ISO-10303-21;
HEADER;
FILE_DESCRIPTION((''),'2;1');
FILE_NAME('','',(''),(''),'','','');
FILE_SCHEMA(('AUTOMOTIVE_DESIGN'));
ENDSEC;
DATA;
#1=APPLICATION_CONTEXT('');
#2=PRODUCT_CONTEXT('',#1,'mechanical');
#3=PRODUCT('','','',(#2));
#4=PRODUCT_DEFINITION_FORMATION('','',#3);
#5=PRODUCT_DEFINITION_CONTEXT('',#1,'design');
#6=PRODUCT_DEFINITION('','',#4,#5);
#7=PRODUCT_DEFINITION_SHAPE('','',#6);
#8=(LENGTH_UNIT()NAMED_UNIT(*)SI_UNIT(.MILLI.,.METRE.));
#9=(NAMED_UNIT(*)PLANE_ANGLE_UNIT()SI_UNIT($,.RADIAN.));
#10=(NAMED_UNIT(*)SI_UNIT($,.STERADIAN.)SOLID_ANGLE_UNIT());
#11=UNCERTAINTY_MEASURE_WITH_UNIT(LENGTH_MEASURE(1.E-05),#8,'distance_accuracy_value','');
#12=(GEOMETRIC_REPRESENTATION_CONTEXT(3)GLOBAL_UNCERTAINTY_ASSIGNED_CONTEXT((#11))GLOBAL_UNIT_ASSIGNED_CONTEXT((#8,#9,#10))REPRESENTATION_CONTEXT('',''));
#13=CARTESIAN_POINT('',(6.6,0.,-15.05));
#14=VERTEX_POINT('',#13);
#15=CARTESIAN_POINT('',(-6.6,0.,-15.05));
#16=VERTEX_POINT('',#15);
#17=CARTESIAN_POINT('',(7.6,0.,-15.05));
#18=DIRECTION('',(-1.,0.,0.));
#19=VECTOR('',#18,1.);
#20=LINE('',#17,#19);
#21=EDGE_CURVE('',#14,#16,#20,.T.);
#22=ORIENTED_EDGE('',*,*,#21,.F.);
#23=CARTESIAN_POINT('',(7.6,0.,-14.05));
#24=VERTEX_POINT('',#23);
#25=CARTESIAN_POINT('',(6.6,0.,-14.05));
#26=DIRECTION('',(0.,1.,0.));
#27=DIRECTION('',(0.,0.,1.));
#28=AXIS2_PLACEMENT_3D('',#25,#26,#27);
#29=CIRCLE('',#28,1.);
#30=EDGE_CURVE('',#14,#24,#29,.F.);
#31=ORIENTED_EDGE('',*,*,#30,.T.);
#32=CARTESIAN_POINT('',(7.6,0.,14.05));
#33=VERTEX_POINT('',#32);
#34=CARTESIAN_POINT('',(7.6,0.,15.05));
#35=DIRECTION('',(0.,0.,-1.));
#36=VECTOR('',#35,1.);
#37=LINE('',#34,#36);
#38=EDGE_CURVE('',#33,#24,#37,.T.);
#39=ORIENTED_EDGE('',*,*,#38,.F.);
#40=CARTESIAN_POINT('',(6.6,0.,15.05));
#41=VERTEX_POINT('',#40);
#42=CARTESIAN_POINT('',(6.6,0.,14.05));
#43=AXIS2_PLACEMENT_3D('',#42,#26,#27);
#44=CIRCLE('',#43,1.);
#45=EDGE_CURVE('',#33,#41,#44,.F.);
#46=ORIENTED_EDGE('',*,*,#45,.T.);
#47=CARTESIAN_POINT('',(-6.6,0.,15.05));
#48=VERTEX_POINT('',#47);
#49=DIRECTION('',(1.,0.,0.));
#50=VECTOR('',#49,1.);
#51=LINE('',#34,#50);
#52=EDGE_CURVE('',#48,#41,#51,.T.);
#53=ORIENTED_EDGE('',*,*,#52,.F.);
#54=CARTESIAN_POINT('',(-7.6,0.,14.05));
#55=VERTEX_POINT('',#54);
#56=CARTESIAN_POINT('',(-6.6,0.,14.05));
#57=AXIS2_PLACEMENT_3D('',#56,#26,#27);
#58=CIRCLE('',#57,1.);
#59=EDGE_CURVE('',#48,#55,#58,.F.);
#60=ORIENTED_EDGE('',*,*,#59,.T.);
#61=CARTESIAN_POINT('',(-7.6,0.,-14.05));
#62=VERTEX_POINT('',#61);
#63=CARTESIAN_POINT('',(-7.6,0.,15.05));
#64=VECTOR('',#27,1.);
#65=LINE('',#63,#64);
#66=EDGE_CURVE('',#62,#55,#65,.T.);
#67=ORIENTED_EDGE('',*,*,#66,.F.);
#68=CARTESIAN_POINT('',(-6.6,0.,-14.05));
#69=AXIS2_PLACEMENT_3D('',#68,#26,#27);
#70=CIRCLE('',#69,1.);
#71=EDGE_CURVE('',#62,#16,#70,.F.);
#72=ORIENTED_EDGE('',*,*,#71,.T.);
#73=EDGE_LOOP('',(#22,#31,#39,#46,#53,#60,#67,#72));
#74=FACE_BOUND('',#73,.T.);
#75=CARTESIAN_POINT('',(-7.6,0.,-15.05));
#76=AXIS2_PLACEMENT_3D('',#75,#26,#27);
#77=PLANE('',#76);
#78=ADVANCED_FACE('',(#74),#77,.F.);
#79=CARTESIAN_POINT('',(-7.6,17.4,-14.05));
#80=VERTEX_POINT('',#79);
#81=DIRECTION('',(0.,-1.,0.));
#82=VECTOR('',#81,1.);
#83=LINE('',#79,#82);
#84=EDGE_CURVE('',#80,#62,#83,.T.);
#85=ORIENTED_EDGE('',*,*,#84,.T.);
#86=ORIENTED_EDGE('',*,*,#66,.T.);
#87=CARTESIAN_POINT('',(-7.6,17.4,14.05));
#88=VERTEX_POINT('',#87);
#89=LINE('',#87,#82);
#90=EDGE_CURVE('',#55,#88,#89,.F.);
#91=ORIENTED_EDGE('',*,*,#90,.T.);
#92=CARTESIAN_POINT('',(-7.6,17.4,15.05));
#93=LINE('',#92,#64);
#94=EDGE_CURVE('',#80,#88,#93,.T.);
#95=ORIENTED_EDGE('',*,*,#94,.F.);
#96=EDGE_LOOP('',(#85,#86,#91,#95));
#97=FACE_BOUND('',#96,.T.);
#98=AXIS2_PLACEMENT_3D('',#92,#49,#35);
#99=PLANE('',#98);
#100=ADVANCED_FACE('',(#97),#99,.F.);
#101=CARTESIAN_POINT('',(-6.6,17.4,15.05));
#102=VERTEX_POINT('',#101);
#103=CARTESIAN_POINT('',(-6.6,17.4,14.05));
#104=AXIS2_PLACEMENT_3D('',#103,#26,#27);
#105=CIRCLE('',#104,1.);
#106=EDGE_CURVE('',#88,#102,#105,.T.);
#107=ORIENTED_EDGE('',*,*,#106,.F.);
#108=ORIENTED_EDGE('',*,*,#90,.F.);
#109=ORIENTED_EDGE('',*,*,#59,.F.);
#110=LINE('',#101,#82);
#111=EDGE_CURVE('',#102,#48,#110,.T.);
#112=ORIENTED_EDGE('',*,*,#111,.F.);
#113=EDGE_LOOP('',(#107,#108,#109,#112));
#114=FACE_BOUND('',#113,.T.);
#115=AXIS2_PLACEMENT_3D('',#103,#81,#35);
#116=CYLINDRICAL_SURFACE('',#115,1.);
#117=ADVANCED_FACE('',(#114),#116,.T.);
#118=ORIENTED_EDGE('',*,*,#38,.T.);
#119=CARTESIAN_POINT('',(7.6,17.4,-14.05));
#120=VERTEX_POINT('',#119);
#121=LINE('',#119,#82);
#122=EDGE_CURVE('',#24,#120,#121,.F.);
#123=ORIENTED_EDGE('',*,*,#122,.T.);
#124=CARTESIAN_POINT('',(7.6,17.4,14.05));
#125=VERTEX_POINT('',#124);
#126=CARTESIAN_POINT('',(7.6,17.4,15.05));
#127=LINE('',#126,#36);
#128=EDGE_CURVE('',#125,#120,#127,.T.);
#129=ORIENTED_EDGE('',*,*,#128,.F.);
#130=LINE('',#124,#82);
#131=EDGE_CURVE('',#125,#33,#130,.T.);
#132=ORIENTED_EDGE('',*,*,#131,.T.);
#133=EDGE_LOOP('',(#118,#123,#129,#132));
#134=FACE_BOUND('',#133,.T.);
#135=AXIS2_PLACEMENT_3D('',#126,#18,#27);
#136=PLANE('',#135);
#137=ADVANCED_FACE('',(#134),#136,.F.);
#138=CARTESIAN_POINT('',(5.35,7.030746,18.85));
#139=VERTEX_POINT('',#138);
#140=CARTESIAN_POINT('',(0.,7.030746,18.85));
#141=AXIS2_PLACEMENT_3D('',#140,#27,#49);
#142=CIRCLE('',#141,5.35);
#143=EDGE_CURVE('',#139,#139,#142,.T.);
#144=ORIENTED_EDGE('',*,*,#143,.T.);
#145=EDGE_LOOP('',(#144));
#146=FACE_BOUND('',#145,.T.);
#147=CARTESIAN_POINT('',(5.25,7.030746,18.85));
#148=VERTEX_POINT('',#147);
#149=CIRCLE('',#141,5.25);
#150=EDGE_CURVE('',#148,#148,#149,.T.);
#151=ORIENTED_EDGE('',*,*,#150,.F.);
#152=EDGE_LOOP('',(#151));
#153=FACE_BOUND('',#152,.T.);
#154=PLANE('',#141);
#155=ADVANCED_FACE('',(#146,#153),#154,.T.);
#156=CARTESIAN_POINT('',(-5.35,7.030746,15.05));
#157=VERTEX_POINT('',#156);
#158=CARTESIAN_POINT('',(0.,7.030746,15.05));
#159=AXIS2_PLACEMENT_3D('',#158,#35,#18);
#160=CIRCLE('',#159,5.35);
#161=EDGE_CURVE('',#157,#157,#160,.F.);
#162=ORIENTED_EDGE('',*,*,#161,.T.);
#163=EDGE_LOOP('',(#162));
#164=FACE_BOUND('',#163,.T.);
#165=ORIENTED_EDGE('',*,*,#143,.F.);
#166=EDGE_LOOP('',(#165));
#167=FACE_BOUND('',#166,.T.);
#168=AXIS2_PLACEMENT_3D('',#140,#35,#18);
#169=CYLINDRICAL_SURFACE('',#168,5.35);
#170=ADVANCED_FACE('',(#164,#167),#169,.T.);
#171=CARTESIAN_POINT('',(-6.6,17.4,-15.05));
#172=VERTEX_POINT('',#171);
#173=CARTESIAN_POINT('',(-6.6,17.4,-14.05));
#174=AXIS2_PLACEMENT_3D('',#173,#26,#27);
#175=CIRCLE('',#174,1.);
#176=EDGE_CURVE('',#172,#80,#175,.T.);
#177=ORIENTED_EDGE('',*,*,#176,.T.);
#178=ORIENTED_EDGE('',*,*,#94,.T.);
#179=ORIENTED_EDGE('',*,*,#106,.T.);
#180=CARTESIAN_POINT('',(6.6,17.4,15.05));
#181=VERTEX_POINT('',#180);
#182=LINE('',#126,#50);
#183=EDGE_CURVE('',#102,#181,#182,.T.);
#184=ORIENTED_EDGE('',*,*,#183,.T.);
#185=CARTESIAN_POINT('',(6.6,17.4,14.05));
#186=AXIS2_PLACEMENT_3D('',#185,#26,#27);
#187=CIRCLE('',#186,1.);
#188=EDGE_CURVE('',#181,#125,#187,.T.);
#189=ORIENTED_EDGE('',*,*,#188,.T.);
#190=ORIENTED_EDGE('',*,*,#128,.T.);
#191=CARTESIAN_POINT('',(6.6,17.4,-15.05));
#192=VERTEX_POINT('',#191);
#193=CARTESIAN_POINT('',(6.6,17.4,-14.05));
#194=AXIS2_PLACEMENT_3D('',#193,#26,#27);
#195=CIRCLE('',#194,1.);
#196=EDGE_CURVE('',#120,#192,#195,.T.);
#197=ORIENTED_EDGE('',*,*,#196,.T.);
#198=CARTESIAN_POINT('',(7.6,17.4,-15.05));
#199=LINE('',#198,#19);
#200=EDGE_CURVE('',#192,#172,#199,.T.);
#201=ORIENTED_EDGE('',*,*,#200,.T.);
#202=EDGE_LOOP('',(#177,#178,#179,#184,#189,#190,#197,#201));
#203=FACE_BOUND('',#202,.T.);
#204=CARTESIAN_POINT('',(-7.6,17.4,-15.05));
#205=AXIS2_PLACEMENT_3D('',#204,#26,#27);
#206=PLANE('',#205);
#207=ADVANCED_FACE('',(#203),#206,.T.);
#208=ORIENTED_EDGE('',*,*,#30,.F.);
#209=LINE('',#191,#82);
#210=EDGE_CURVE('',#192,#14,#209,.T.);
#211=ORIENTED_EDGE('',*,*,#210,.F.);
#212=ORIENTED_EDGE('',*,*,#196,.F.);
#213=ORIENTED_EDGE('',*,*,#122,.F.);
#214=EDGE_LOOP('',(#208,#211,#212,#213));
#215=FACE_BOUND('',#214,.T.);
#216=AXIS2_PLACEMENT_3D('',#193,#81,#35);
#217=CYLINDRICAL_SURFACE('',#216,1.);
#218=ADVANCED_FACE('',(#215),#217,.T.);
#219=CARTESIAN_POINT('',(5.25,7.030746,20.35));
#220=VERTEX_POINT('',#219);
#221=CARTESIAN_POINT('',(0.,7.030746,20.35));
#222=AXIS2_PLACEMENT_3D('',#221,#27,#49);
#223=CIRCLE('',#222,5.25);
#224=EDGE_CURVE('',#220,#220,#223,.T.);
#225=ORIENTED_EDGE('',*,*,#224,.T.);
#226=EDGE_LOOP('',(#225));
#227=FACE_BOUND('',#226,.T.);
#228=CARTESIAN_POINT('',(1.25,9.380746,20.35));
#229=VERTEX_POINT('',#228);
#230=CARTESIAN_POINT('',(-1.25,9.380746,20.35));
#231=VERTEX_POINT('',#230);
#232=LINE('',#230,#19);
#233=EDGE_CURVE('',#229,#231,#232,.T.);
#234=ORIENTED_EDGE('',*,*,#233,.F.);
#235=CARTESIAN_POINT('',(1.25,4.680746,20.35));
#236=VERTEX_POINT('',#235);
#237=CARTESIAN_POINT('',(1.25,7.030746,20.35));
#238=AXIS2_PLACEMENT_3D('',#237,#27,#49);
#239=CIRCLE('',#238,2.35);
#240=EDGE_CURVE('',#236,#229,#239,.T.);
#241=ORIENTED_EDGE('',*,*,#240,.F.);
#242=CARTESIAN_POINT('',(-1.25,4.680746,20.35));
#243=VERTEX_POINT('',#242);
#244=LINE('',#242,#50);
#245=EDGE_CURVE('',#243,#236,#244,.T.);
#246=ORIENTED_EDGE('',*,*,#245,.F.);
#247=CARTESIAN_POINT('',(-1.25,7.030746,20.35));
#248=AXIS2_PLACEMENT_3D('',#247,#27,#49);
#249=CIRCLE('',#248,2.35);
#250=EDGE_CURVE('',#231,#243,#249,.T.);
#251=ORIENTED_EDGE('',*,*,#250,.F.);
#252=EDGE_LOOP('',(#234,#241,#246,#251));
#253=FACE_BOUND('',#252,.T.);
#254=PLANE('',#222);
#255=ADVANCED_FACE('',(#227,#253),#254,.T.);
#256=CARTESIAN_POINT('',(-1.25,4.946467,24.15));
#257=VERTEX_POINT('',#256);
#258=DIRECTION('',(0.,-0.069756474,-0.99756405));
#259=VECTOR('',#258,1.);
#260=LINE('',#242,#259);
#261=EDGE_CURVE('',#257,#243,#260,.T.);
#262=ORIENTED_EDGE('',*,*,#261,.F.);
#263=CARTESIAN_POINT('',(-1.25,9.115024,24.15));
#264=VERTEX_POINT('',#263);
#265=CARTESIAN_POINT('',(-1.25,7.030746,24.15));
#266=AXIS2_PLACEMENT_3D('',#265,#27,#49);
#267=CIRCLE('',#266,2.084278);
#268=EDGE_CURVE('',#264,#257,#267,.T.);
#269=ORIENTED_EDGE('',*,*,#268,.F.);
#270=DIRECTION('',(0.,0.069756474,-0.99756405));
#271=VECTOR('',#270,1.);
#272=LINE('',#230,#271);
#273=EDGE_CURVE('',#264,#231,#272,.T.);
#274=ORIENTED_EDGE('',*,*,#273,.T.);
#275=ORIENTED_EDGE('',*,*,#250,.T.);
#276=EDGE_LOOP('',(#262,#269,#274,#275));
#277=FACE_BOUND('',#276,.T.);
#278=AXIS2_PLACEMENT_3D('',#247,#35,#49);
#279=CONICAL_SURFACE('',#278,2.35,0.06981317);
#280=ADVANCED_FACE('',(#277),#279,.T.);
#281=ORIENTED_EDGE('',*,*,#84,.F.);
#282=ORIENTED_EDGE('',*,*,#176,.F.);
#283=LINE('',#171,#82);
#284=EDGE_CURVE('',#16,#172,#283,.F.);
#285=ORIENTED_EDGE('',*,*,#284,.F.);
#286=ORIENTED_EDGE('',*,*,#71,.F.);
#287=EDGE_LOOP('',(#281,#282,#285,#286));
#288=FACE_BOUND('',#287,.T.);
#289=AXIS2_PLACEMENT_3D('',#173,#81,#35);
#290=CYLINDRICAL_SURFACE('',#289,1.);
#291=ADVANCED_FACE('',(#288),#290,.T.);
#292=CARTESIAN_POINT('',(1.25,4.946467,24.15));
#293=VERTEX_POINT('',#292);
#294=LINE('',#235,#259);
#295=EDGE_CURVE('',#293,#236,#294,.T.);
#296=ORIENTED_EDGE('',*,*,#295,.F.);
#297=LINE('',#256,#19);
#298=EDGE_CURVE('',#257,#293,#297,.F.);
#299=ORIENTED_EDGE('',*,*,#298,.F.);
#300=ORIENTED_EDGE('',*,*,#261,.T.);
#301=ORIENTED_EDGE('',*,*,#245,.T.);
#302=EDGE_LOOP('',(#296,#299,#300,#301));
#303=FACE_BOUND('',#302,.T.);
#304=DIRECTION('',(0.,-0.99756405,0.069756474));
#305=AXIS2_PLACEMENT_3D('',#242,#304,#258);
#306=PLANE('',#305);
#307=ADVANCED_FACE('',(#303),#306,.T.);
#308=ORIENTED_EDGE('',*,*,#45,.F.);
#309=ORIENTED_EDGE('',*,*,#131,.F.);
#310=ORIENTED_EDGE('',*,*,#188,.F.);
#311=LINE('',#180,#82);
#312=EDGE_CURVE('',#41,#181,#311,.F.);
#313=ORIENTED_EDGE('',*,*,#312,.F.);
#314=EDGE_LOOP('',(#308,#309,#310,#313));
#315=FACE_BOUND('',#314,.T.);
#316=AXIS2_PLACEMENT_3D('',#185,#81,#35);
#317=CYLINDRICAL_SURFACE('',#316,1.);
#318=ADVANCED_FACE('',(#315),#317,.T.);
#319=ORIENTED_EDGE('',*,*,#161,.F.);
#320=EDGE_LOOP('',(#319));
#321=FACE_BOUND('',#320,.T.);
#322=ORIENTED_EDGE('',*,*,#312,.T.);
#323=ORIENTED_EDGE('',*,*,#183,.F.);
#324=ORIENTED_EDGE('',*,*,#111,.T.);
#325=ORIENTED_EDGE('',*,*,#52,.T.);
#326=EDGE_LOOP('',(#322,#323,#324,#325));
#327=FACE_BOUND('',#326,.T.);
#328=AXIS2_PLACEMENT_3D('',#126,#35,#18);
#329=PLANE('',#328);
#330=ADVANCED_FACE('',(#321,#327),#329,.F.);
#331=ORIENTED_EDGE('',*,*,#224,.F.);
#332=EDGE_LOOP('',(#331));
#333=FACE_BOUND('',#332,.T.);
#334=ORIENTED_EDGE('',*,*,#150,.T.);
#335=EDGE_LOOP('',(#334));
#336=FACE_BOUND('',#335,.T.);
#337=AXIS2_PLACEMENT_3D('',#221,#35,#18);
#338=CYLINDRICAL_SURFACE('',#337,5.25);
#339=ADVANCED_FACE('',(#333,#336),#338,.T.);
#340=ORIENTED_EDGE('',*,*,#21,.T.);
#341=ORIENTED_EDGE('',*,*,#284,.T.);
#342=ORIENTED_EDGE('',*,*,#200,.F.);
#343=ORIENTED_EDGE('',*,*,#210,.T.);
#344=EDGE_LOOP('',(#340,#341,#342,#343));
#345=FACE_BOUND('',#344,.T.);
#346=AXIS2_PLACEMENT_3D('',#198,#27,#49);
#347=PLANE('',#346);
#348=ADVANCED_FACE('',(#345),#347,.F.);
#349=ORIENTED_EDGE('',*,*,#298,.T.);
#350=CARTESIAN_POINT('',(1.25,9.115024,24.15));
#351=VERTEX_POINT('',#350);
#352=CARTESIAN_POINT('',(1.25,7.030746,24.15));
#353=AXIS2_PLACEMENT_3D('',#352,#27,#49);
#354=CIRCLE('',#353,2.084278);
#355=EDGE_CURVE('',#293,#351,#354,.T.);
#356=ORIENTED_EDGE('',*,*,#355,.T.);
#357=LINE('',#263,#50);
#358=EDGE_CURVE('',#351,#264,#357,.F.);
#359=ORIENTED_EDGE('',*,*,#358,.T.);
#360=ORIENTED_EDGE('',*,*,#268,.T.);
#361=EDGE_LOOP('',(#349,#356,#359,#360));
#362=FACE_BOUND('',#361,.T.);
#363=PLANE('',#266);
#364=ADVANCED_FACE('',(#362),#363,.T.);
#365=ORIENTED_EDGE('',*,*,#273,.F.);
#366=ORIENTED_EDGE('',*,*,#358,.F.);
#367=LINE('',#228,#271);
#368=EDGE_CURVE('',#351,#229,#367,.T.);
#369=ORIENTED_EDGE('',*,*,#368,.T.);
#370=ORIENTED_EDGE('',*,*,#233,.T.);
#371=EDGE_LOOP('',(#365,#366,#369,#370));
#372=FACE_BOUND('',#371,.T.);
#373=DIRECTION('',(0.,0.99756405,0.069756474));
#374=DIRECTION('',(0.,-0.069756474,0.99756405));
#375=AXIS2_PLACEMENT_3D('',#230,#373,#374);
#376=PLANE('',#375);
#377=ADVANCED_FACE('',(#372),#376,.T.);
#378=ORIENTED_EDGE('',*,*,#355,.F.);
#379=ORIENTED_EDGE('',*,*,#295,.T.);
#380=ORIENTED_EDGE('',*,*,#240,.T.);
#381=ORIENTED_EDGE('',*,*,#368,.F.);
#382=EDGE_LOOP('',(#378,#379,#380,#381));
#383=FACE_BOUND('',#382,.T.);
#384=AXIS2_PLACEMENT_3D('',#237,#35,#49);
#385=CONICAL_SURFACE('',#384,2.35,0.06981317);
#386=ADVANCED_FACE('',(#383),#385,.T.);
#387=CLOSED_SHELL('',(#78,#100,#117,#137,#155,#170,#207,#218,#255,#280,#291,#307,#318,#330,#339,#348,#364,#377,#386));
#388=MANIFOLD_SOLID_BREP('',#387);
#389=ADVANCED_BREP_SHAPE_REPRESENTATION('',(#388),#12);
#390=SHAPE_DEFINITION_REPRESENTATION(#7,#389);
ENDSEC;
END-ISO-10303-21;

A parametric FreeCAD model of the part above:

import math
import FreeCAD as App
import Part
import Sketcher


def edges_at(feature, points):
    """Names of the edges that pass closest to the given points."""
    edges = feature.Shape.Edges
    near = lambda p: min(range(len(edges)), key=lambda i: edges[i].distToShape(Part.Vertex(*p))[0])
    return sorted({f"Edge{near(p) + 1}" for p in points})

doc = App.newDocument("Part")
body = doc.addObject("PartDesign::Body", "Body")

sketch1 = body.newObject("Sketcher::SketchObject", "Sketch")
sketch1.AttachmentSupport = (doc.getObject("XZ_Plane"), [""])
sketch1.MapMode = "FlatFace"
sketch1.addGeometry([
    Part.LineSegment(App.Vector(-7.6, -15.05, 0), App.Vector(-7.6, 15.05, 0)),
    Part.LineSegment(App.Vector(-7.6, 15.05, 0), App.Vector(7.6, 15.05, 0)),
    Part.LineSegment(App.Vector(7.6, 15.05, 0), App.Vector(7.6, -15.05, 0)),
    Part.LineSegment(App.Vector(7.6, -15.05, 0), App.Vector(-7.6, -15.05, 0)),
], False)
sketch1.addConstraint([
    Sketcher.Constraint("Coincident", 0, 2, 1, 1),
    Sketcher.Constraint("Coincident", 1, 2, 2, 1),
    Sketcher.Constraint("Coincident", 2, 2, 3, 1),
    Sketcher.Constraint("Coincident", 3, 2, 0, 1),
    Sketcher.Constraint("Vertical", 0),
    Sketcher.Constraint("Horizontal", 1),
    Sketcher.Constraint("Vertical", 2),
    Sketcher.Constraint("Horizontal", 3),
    Sketcher.Constraint("Symmetric", 0, 2, 2, 2, -1, 1),
    Sketcher.Constraint("DistanceX", 1, 1, 1, 2, 15.2),
    Sketcher.Constraint("DistanceY", 0, 1, 0, 2, 30.1),
])
pad1 = body.newObject("PartDesign::Pad", "Pad")
pad1.Profile = sketch1
pad1.Length = 17.4
pad1.Reversed = True
doc.recompute()

fillet = body.newObject("PartDesign::Fillet", "Fillet")
fillet.Base = (pad1, edges_at(pad1, [
    (-7.6, 8.7, -15.05),
    (7.6, 8.7, -15.05),
    (7.6, 8.7, 15.05),
    (-7.6, 8.7, 15.05),
]))
fillet.Radius = 1

sketch2 = body.newObject("Sketcher::SketchObject", "Sketch001")
sketch2.AttachmentSupport = (doc.getObject("XY_Plane"), [""])
sketch2.MapMode = "FlatFace"
sketch2.AttachmentOffset = App.Placement(App.Vector(0, 0, 15.05), App.Rotation())
sketch2.addGeometry(Part.Circle(App.Vector(0, 7.030746, 0), App.Vector(0, 0, 1), 5.35), False)
sketch2.addConstraint([
    Sketcher.Constraint("PointOnObject", 0, 3, -2),
    Sketcher.Constraint("Diameter", 0, 10.7),
    Sketcher.Constraint("DistanceY", -1, 1, 0, 3, 7.030746),
])
pad2 = body.newObject("PartDesign::Pad", "Pad001")
pad2.Profile = sketch2
pad2.Length = 3.8

sketch3 = body.newObject("Sketcher::SketchObject", "Sketch002")
sketch3.AttachmentSupport = (doc.getObject("XY_Plane"), [""])
sketch3.MapMode = "FlatFace"
sketch3.AttachmentOffset = App.Placement(App.Vector(0, 0, 18.85), App.Rotation())
sketch3.addGeometry(Part.Circle(App.Vector(0, 7.030746, 0), App.Vector(0, 0, 1), 5.25), False)
sketch3.addConstraint([
    Sketcher.Constraint("PointOnObject", 0, 3, -2),
    Sketcher.Constraint("Diameter", 0, 10.5),
    Sketcher.Constraint("DistanceY", -1, 1, 0, 3, 7.030746),
])
pad3 = body.newObject("PartDesign::Pad", "Pad002")
pad3.Profile = sketch3
pad3.Length = 1.5

sketch4 = body.newObject("Sketcher::SketchObject", "Sketch003")
sketch4.AttachmentSupport = (doc.getObject("XY_Plane"), [""])
sketch4.MapMode = "FlatFace"
sketch4.AttachmentOffset = App.Placement(App.Vector(0, 0, 20.35), App.Rotation())
sketch4.addGeometry([
    Part.ArcOfCircle(Part.Circle(App.Vector(-1.25, 7.030746, 0), App.Vector(0, 0, 1), 2.35), math.radians(90), math.radians(270)),
    Part.LineSegment(App.Vector(-1.25, 4.680746, 0), App.Vector(1.25, 4.680746, 0)),
    Part.ArcOfCircle(Part.Circle(App.Vector(1.25, 7.030746, 0), App.Vector(0, 0, 1), 2.35), math.radians(-90), math.radians(90)),
    Part.LineSegment(App.Vector(1.25, 9.380746, 0), App.Vector(-1.25, 9.380746, 0)),
], False)
sketch4.addConstraint([
    Sketcher.Constraint("Tangent", 0, 2, 1, 1),
    Sketcher.Constraint("Tangent", 1, 2, 2, 1),
    Sketcher.Constraint("Tangent", 2, 2, 3, 1),
    Sketcher.Constraint("Tangent", 3, 2, 0, 1),
    Sketcher.Constraint("Horizontal", 1),
    Sketcher.Constraint("Horizontal", 3),
    Sketcher.Constraint("Radius", 0, 2.35),
    Sketcher.Constraint("DistanceX", 1, 1, 1, 2, 2.5),
    Sketcher.Constraint("DistanceX", 0, 3, -1, 1, 1.25),
    Sketcher.Constraint("DistanceY", -1, 1, 0, 3, 7.030746),
])
pad4 = body.newObject("PartDesign::Pad", "Pad003")
pad4.Profile = sketch4
pad4.Length = 3.8
pad4.TaperAngle = -4

doc.recompute()
